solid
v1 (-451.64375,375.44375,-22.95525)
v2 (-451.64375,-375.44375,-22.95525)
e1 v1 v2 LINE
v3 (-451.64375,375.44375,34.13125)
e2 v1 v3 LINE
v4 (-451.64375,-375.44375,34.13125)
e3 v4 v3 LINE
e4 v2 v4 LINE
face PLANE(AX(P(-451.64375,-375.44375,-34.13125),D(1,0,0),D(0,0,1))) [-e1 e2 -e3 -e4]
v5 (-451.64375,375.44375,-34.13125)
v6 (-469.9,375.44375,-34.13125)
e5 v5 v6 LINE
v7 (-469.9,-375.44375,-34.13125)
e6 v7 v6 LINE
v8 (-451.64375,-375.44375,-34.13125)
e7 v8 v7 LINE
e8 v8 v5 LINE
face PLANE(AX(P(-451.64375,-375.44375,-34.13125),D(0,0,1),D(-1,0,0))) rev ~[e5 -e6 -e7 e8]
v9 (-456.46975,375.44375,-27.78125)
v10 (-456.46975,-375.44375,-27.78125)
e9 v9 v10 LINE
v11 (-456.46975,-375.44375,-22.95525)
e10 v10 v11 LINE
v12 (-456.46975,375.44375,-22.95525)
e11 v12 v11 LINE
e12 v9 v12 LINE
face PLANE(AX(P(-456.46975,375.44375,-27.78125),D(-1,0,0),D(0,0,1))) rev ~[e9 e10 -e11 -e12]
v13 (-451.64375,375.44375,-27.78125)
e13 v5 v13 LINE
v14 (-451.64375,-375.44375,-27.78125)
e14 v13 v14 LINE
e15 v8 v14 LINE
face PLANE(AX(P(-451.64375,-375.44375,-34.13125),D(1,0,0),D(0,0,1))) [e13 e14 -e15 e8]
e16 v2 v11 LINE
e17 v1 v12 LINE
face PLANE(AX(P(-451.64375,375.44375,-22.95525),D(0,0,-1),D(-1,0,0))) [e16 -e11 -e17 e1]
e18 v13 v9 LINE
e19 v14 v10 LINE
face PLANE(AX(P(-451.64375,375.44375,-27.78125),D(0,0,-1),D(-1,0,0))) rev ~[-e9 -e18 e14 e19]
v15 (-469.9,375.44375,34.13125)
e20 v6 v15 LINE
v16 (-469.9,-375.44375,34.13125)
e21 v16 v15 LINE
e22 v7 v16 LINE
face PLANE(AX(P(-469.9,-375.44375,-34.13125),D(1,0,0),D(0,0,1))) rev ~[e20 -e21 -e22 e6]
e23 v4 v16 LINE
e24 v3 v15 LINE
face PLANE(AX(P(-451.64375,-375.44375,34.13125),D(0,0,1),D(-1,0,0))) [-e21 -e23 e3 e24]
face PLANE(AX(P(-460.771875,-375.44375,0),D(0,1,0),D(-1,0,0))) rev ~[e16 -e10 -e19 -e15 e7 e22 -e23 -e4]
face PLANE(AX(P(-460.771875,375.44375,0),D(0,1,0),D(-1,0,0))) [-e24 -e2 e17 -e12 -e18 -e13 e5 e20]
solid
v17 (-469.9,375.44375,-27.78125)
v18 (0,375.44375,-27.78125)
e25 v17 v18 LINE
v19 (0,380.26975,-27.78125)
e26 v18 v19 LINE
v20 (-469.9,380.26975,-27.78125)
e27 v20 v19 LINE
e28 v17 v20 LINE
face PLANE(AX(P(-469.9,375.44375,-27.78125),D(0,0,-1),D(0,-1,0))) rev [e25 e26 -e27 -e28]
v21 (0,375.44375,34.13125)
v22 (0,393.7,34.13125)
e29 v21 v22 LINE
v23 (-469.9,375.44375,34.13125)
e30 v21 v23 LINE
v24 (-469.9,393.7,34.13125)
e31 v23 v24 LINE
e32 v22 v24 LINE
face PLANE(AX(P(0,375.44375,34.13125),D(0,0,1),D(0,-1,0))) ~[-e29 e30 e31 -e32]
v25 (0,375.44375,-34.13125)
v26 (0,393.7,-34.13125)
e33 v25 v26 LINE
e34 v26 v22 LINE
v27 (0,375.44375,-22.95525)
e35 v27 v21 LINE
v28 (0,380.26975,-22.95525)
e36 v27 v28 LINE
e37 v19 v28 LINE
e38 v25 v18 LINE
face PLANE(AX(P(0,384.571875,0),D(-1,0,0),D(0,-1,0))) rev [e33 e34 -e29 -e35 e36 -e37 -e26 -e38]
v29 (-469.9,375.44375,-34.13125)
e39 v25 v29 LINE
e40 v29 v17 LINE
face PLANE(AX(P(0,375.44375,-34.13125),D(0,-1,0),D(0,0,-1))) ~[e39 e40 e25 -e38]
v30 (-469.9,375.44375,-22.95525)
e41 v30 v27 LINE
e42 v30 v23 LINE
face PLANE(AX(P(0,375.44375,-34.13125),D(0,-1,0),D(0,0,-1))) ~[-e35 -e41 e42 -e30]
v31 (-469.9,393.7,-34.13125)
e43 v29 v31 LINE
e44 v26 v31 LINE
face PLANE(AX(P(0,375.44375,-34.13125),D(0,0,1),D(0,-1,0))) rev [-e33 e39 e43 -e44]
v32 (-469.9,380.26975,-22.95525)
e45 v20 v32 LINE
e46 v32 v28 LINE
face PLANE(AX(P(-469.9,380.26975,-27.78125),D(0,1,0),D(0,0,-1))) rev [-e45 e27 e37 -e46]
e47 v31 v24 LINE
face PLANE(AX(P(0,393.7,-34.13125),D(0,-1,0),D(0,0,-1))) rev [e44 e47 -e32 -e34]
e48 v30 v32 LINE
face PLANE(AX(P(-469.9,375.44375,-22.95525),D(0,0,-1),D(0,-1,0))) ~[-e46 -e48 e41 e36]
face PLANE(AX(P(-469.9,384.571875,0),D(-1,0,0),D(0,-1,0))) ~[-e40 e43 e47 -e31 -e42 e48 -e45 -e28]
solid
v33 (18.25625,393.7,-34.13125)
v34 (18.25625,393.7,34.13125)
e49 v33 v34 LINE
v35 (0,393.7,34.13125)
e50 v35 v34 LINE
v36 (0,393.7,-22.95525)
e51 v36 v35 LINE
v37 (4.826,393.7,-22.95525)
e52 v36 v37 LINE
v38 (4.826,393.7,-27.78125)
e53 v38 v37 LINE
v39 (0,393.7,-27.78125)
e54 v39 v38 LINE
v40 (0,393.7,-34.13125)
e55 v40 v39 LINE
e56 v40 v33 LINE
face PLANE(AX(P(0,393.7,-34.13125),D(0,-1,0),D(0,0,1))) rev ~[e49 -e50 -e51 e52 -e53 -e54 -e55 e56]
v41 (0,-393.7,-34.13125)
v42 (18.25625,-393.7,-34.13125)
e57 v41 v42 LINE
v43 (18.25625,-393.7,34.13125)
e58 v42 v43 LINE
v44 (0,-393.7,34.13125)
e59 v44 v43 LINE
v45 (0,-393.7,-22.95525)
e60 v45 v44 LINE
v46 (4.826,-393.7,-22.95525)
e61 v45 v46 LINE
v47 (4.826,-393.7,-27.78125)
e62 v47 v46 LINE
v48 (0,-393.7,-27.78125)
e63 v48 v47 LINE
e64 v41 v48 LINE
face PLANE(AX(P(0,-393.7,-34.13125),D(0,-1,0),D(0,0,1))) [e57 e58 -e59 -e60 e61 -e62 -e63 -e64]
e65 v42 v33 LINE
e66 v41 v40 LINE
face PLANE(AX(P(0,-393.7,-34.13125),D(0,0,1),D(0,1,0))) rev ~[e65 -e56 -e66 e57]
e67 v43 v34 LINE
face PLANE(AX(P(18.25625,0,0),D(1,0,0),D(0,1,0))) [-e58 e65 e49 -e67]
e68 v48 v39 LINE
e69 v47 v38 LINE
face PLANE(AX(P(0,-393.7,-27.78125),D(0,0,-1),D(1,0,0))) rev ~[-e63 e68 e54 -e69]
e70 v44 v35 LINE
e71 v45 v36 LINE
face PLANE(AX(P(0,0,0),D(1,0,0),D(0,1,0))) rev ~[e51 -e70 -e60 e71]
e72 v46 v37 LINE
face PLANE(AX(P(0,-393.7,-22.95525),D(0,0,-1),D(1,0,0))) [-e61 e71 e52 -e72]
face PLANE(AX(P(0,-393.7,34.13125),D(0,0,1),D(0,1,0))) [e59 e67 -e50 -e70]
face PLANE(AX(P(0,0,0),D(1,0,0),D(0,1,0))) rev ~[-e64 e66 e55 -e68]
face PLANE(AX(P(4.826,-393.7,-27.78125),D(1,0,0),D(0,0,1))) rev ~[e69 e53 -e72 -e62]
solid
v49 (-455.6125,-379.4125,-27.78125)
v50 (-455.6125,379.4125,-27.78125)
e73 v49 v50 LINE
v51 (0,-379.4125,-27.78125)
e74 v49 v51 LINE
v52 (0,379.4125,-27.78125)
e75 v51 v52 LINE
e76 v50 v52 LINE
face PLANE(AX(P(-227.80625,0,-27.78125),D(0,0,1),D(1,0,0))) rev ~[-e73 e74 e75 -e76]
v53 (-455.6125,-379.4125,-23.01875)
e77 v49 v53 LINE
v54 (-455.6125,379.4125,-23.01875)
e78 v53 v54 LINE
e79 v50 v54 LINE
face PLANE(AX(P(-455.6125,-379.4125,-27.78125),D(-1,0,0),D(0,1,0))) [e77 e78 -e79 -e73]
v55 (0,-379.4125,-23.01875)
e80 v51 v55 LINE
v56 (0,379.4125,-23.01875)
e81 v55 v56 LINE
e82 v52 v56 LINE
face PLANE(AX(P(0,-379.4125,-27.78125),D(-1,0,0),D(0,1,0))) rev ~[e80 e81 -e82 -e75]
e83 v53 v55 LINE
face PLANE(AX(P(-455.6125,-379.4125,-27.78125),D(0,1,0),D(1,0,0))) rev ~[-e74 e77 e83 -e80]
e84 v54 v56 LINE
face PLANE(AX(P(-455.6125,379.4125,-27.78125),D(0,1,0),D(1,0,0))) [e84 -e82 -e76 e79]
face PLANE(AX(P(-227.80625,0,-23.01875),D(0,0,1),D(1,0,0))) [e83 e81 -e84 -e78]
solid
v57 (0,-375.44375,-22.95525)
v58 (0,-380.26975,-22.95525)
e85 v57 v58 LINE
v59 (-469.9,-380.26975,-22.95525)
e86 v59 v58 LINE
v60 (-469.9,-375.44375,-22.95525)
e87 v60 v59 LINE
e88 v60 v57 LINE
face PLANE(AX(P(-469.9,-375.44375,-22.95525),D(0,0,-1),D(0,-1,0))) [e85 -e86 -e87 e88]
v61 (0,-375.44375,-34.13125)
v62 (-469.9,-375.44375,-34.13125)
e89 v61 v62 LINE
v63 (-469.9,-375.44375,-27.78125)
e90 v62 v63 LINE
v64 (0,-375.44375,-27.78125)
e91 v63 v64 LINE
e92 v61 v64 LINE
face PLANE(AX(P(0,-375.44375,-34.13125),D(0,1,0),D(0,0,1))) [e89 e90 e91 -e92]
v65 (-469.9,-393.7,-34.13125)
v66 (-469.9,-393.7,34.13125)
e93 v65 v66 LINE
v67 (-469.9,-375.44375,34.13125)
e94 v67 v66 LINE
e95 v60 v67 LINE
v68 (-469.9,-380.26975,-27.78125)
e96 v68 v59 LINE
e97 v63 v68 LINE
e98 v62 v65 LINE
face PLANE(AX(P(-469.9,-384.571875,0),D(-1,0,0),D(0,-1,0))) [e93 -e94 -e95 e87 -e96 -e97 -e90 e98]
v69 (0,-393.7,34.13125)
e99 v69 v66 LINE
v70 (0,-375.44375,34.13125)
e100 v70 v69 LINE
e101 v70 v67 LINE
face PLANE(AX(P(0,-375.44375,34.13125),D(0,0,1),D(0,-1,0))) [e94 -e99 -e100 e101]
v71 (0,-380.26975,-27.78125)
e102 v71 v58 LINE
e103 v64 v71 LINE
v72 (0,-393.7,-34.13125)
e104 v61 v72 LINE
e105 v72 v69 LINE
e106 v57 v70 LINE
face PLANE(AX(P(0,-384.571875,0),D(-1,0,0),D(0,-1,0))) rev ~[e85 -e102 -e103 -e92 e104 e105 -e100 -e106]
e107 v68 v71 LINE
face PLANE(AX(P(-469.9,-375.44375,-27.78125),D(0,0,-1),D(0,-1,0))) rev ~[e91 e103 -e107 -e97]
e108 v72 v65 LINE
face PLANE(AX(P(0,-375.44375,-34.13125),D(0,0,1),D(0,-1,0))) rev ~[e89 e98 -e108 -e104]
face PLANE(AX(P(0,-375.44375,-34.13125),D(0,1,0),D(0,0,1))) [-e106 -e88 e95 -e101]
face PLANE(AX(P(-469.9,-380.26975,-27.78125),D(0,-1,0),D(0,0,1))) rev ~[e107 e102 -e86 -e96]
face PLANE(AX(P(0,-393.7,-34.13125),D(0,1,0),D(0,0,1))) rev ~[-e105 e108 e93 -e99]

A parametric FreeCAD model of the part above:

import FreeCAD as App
import Part
import Sketcher
from FreeCAD import Vector
Q = App.Units.Quantity

doc = App.newDocument("Part")
body = doc.addObject("PartDesign::Body", "Body")

sketch1 = body.newObject("Sketcher::SketchObject", "Sketch")
sketch1.AttachmentSupport = (doc.getObject("YZ_Plane"), [""])
sketch1.MapMode = "FlatFace"
sketch1.addGeometry(Part.LineSegment(Vector(-394, 34, 0), Vector(-394, -34, 0)), False)
sketch1.addGeometry(Part.LineSegment(Vector(-394, -34, 0), Vector(394, -34, 0)), False)
sketch1.addGeometry(Part.LineSegment(Vector(394, -34, 0), Vector(394, 34, 0)), False)
sketch1.addGeometry(Part.LineSegment(Vector(394, 34, 0), Vector(-394, 34, 0)), False)
sketch1.addConstraint(Sketcher.Constraint("Coincident", 0, 2, 1, 1))
sketch1.addConstraint(Sketcher.Constraint("Coincident", 1, 2, 2, 1))
sketch1.addConstraint(Sketcher.Constraint("Coincident", 2, 2, 3, 1))
sketch1.addConstraint(Sketcher.Constraint("Coincident", 3, 2, 0, 1))
sketch1.addConstraint(Sketcher.Constraint("Vertical", 0))
sketch1.addConstraint(Sketcher.Constraint("Horizontal", 1))
sketch1.addConstraint(Sketcher.Constraint("Vertical", 2))
sketch1.addConstraint(Sketcher.Constraint("Horizontal", 3))
sketch1.addConstraint(Sketcher.Constraint("Symmetric", 0, 2, 2, 2, -1, 1))
sketch1.addConstraint(Sketcher.Constraint("DistanceX", 1, 1, 1, 2, Q("31 in")))
sketch1.addConstraint(Sketcher.Constraint("DistanceY", 0, 2, 0, 1, Q("2.6875 in")))
pad1 = body.newObject("PartDesign::Pad", "Pad")
pad1.Profile = sketch1
pad1.Length = Q("0.71875 in")

sketch2 = body.newObject("Sketcher::SketchObject", "Sketch001")
sketch2.AttachmentSupport = (doc.getObject("XZ_Plane"), [""])
sketch2.MapMode = "FlatFace"
sketch2.AttachmentOffset = App.Placement(Vector(0, 0, 15.5 * 25.4), App.Rotation())
sketch2.addGeometry(Part.LineSegment(Vector(0, -23, 0), Vector(0, -27.8, 0)), False)
sketch2.addGeometry(Part.LineSegment(Vector(0, -27.8, 0), Vector(4.8, -27.8, 0)), False)
sketch2.addGeometry(Part.LineSegment(Vector(4.8, -27.8, 0), Vector(4.8, -23, 0)), False)
sketch2.addGeometry(Part.LineSegment(Vector(4.8, -23, 0), Vector(0, -23, 0)), False)
sketch2.addConstraint(Sketcher.Constraint("Coincident", 0, 2, 1, 1))
sketch2.addConstraint(Sketcher.Constraint("Coincident", 1, 2, 2, 1))
sketch2.addConstraint(Sketcher.Constraint("Coincident", 2, 2, 3, 1))
sketch2.addConstraint(Sketcher.Constraint("Coincident", 3, 2, 0, 1))
sketch2.addConstraint(Sketcher.Constraint("Vertical", 0))
sketch2.addConstraint(Sketcher.Constraint("Horizontal", 1))
sketch2.addConstraint(Sketcher.Constraint("Vertical", 2))
sketch2.addConstraint(Sketcher.Constraint("Horizontal", 3))
sketch2.addConstraint(Sketcher.Constraint("PointOnObject", 0, 2, -2))
sketch2.addConstraint(Sketcher.Constraint("Equal", 3, 0))
sketch2.addConstraint(Sketcher.Constraint("DistanceX", 1, 1, 1, 2, Q("0.19 in")))
sketch2.addConstraint(Sketcher.Constraint("DistanceY", 0, 2, -1, 1, Q("1.09375 in")))
pocket1 = body.newObject("PartDesign::Pocket", "Pocket")
pocket1.Profile = sketch2
pocket1.Type = "ThroughAll"
body2 = doc.addObject("PartDesign::Body", "Body001")

sketch3 = body2.newObject("Sketcher::SketchObject", "Sketch002")
sketch3.AttachmentSupport = (doc.getObject("YZ_Plane001"), [""])
sketch3.MapMode = "FlatFace"
sketch3.addGeometry(Part.LineSegment(Vector(-375, 34, 0), Vector(-375, -34, 0)), False)
sketch3.addGeometry(Part.LineSegment(Vector(-375, -34, 0), Vector(-394, -34, 0)), False)
sketch3.addGeometry(Part.LineSegment(Vector(-394, -34, 0), Vector(-394, 34, 0)), False)
sketch3.addGeometry(Part.LineSegment(Vector(-394, 34, 0), Vector(-375, 34, 0)), False)
sketch3.addConstraint(Sketcher.Constraint("Coincident", 0, 2, 1, 1))
sketch3.addConstraint(Sketcher.Constraint("Coincident", 1, 2, 2, 1))
sketch3.addConstraint(Sketcher.Constraint("Coincident", 2, 2, 3, 1))
sketch3.addConstraint(Sketcher.Constraint("Coincident", 3, 2, 0, 1))
sketch3.addConstraint(Sketcher.Constraint("Vertical", 0))
sketch3.addConstraint(Sketcher.Constraint("Horizontal", 1))
sketch3.addConstraint(Sketcher.Constraint("Vertical", 2))
sketch3.addConstraint(Sketcher.Constraint("Horizontal", 3))
sketch3.addConstraint(Sketcher.Constraint("DistanceX", 1, 2, -1, 1, Q("15.5 in")))
sketch3.addConstraint(Sketcher.Constraint("DistanceX", 1, 2, 1, 1, Q("0.71875 in")))
sketch3.addConstraint(Sketcher.Constraint("DistanceY", 0, 2, 0, 1, Q("2.6875 in")))
sketch3.addConstraint(Sketcher.Constraint("DistanceY", 0, 2, -1, 1, Q("1.34375 in")))
pad2 = body2.newObject("PartDesign::Pad", "Pad001")
pad2.Profile = sketch3
pad2.Length = Q("18.5 in")
pad2.Reversed = True

sketch4 = body2.newObject("Sketcher::SketchObject", "Sketch003")
sketch4.AttachmentSupport = (doc.getObject("YZ_Plane001"), [""])
sketch4.MapMode = "FlatFace"
sketch4.AttachmentOffset = App.Placement(Vector(0, 0, -18.5 * 25.4), App.Rotation())
sketch4.addGeometry(Part.LineSegment(Vector(-375.4, -23, 0), Vector(-375.4, -27.8, 0)), False)
sketch4.addGeometry(Part.LineSegment(Vector(-375.4, -27.8, 0), Vector(-380.3, -27.8, 0)), False)
sketch4.addGeometry(Part.LineSegment(Vector(-380.3, -27.8, 0), Vector(-380.3, -23, 0)), False)
sketch4.addGeometry(Part.LineSegment(Vector(-380.3, -23, 0), Vector(-375.4, -23, 0)), False)
sketch4.addConstraint(Sketcher.Constraint("Coincident", 0, 2, 1, 1))
sketch4.addConstraint(Sketcher.Constraint("Coincident", 1, 2, 2, 1))
sketch4.addConstraint(Sketcher.Constraint("Coincident", 2, 2, 3, 1))
sketch4.addConstraint(Sketcher.Constraint("Coincident", 3, 2, 0, 1))
sketch4.addConstraint(Sketcher.Constraint("Vertical", 0))
sketch4.addConstraint(Sketcher.Constraint("Horizontal", 1))
sketch4.addConstraint(Sketcher.Constraint("Vertical", 2))
sketch4.addConstraint(Sketcher.Constraint("Horizontal", 3))
sketch4.addConstraint(Sketcher.Constraint("Equal", 3, 0))
sketch4.addConstraint(Sketcher.Constraint("DistanceX", 1, 2, 1, 1, Q("0.19 in")))
sketch4.addConstraint(Sketcher.Constraint("DistanceX", 0, 2, -1, 1, Q("14.78125 in")))
sketch4.addConstraint(Sketcher.Constraint("DistanceY", 0, 2, -1, 1, Q("1.09375 in")))
pocket2 = body2.newObject("PartDesign::Pocket", "Pocket001")
pocket2.Profile = sketch4
pocket2.Type = "ThroughAll"
pocket2.Reversed = True
body3 = doc.addObject("PartDesign::Body", "Body002")
doc.recompute()

mirroring = doc.addObject("Part::Mirroring", "Mirroring")
mirroring.Source = body2
mirroring.Base = Vector(0, 0, 0)
mirroring.Normal = Vector(0, -1, 0)
body3.BaseFeature = mirroring
doc.recompute()
body4 = doc.addObject("PartDesign::Body", "Body003")

sketch5 = body4.newObject("Sketcher::SketchObject", "Sketch004")
sketch5.AttachmentSupport = (doc.getObject("XZ_Plane003"), [""])
sketch5.MapMode = "FlatFace"
sketch5.AttachmentOffset = App.Placement(Vector(0, 0, 14.78125 * 25.4), App.Rotation())
sketch5.addGeometry(Part.LineSegment(Vector(-452, 34, 0), Vector(-452, -34, 0)), False)
sketch5.addGeometry(Part.LineSegment(Vector(-452, -34, 0), Vector(-470, -34, 0)), False)
sketch5.addGeometry(Part.LineSegment(Vector(-470, -34, 0), Vector(-470, 34, 0)), False)
sketch5.addGeometry(Part.LineSegment(Vector(-470, 34, 0), Vector(-452, 34, 0)), False)
sketch5.addConstraint(Sketcher.Constraint("Coincident", 0, 2, 1, 1))
sketch5.addConstraint(Sketcher.Constraint("Coincident", 1, 2, 2, 1))
sketch5.addConstraint(Sketcher.Constraint("Coincident", 2, 2, 3, 1))
sketch5.addConstraint(Sketcher.Constraint("Coincident", 3, 2, 0, 1))
sketch5.addConstraint(Sketcher.Constraint("Vertical", 0))
sketch5.addConstraint(Sketcher.Constraint("Horizontal", 1))
sketch5.addConstraint(Sketcher.Constraint("Vertical", 2))
sketch5.addConstraint(Sketcher.Constraint("Horizontal", 3))
sketch5.addConstraint(Sketcher.Constraint("DistanceX", 1, 2, -1, 1, Q("18.5 in")))
sketch5.addConstraint(Sketcher.Constraint("DistanceX", 1, 2, 1, 1, Q("0.71875 in")))
sketch5.addConstraint(Sketcher.Constraint("DistanceY", 0, 2, 0, 1, Q("2.6875 in")))
sketch5.addConstraint(Sketcher.Constraint("DistanceY", 0, 2, -1, 1, Q("1.34375 in")))
pad3 = body4.newObject("PartDesign::Pad", "Pad002")
pad3.Profile = sketch5
pad3.Length = Q("29.5625 in")
pad3.Reversed = True

sketch6 = body4.newObject("Sketcher::SketchObject", "Sketch005")
sketch6.AttachmentSupport = (doc.getObject("XZ_Plane003"), [""])
sketch6.MapMode = "FlatFace"
sketch6.AttachmentOffset = App.Placement(Vector(0, 0, -14.78125 * 25.4), App.Rotation())
sketch6.addGeometry(Part.LineSegment(Vector(-451.6, -23, 0), Vector(-451.6, -27.8, 0)), False)
sketch6.addGeometry(Part.LineSegment(Vector(-451.6, -27.8, 0), Vector(-456.5, -27.8, 0)), False)
sketch6.addGeometry(Part.LineSegment(Vector(-456.5, -27.8, 0), Vector(-456.5, -23, 0)), False)
sketch6.addGeometry(Part.LineSegment(Vector(-456.5, -23, 0), Vector(-451.6, -23, 0)), False)
sketch6.addConstraint(Sketcher.Constraint("Coincident", 0, 2, 1, 1))
sketch6.addConstraint(Sketcher.Constraint("Coincident", 1, 2, 2, 1))
sketch6.addConstraint(Sketcher.Constraint("Coincident", 2, 2, 3, 1))
sketch6.addConstraint(Sketcher.Constraint("Coincident", 3, 2, 0, 1))
sketch6.addConstraint(Sketcher.Constraint("Vertical", 0))
sketch6.addConstraint(Sketcher.Constraint("Horizontal", 1))
sketch6.addConstraint(Sketcher.Constraint("Vertical", 2))
sketch6.addConstraint(Sketcher.Constraint("Horizontal", 3))
sketch6.addConstraint(Sketcher.Constraint("Equal", 3, 0))
sketch6.addConstraint(Sketcher.Constraint("DistanceX", 1, 2, 1, 1, Q("0.19 in")))
sketch6.addConstraint(Sketcher.Constraint("DistanceX", 0, 2, -1, 1, Q("17.78125 in")))
sketch6.addConstraint(Sketcher.Constraint("DistanceY", 0, 2, -1, 1, Q("1.09375 in")))
pocket3 = body4.newObject("PartDesign::Pocket", "Pocket002")
pocket3.Profile = sketch6
pocket3.Type = "ThroughAll"
pocket3.Reversed = True
body5 = doc.addObject("PartDesign::Body", "Body004")

sketch7 = body5.newObject("Sketcher::SketchObject", "Sketch006")
sketch7.AttachmentSupport = (doc.getObject("XY_Plane004"), [""])
sketch7.MapMode = "FlatFace"
sketch7.AttachmentOffset = App.Placement(Vector(0, 0, -1.09375 * 25.4), App.Rotation())
sketch7.addGeometry(Part.LineSegment(Vector(-456, 379, 0), Vector(-456, -379, 0)), False)
sketch7.addGeometry(Part.LineSegment(Vector(-456, -379, 0), Vector(0, -379, 0)), False)
sketch7.addGeometry(Part.LineSegment(Vector(0, -379, 0), Vector(0, 379, 0)), False)
sketch7.addGeometry(Part.LineSegment(Vector(0, 379, 0), Vector(-456, 379, 0)), False)
sketch7.addConstraint(Sketcher.Constraint("Coincident", 0, 2, 1, 1))
sketch7.addConstraint(Sketcher.Constraint("Coincident", 1, 2, 2, 1))
sketch7.addConstraint(Sketcher.Constraint("Coincident", 2, 2, 3, 1))
sketch7.addConstraint(Sketcher.Constraint("Coincident", 3, 2, 0, 1))
sketch7.addConstraint(Sketcher.Constraint("Vertical", 0))
sketch7.addConstraint(Sketcher.Constraint("Horizontal", 1))
sketch7.addConstraint(Sketcher.Constraint("Vertical", 2))
sketch7.addConstraint(Sketcher.Constraint("Horizontal", 3))
sketch7.addConstraint(Sketcher.Constraint("Symmetric", 1, 2, 2, 2, -1, 1))
sketch7.addConstraint(Sketcher.Constraint("DistanceX", 1, 1, 1, 2, Q("17.9375 in")))
sketch7.addConstraint(Sketcher.Constraint("DistanceY", 0, 2, 0, 1, Q("29.875 in")))
pad4 = body5.newObject("PartDesign::Pad", "Pad003")
pad4.Profile = sketch7
pad4.Length = Q("0.1875 in")
mirroring.Visibility = False

doc.recompute()
